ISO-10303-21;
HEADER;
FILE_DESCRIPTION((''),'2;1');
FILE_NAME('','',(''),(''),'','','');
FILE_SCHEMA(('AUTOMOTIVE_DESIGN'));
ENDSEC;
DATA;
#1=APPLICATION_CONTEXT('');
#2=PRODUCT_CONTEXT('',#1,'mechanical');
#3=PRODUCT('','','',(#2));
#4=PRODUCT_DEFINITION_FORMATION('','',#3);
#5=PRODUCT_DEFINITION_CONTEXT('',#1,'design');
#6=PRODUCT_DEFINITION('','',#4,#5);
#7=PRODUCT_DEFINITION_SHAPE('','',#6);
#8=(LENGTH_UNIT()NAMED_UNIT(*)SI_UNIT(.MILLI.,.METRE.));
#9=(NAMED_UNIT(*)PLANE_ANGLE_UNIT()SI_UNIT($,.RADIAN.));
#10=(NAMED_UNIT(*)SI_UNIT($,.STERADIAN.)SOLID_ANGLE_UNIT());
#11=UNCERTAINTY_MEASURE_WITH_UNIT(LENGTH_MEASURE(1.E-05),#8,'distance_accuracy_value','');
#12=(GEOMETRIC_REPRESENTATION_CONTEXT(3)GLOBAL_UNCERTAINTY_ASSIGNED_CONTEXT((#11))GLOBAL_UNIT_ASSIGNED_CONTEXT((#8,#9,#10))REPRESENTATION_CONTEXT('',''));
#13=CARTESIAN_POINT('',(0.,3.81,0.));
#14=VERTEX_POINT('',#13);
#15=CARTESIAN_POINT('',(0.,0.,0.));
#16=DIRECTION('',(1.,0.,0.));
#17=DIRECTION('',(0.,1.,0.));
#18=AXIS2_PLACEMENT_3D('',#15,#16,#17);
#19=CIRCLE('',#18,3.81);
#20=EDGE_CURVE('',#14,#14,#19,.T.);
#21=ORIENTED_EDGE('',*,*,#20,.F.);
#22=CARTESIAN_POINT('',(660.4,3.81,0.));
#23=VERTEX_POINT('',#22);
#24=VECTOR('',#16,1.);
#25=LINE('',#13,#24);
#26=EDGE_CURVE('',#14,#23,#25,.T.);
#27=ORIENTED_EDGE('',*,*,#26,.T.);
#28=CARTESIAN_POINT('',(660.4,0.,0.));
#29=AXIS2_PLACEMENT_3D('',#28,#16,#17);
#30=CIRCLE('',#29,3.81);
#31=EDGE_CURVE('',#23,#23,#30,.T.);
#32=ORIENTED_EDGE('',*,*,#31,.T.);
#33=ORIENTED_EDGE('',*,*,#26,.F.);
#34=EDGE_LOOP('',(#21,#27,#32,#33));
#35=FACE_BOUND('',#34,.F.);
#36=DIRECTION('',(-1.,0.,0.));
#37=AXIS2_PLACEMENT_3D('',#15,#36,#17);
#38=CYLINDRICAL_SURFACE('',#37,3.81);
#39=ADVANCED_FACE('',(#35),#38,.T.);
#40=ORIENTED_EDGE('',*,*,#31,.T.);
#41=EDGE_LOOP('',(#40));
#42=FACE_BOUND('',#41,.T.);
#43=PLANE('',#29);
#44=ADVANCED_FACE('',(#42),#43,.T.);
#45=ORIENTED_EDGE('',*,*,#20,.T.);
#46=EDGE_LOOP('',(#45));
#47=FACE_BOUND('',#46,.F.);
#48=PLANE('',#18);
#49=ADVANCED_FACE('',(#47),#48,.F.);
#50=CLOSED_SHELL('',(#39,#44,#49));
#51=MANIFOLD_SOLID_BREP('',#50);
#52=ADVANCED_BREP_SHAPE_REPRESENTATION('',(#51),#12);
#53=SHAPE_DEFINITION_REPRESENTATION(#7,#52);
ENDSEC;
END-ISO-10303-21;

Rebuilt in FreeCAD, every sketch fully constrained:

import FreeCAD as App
import Part
import Sketcher
from FreeCAD import Vector
Q = App.Units.Quantity

doc = App.newDocument("Part")
body = doc.addObject("PartDesign::Body", "Body")

# Sketch on YZ plane
sketch1 = body.newObject("Sketcher::SketchObject", "Sketch")
sketch1.AttachmentSupport = (doc.getObject("YZ_Plane"), [""])
sketch1.MapMode = "FlatFace"
sketch1.addGeometry(Part.Circle(Vector(0, 0, 0), Vector(0, 0, 1), 3.8), False)
sketch1.addConstraint([
    Sketcher.Constraint("Coincident", 0, 3, -1, 1),
    Sketcher.Constraint("Diameter", 0, Q("0.3 in")),
])
pad1 = body.newObject("PartDesign::Pad", "Pad")
pad1.Profile = sketch1
pad1.Length = Q("26 in")

doc.recompute()
